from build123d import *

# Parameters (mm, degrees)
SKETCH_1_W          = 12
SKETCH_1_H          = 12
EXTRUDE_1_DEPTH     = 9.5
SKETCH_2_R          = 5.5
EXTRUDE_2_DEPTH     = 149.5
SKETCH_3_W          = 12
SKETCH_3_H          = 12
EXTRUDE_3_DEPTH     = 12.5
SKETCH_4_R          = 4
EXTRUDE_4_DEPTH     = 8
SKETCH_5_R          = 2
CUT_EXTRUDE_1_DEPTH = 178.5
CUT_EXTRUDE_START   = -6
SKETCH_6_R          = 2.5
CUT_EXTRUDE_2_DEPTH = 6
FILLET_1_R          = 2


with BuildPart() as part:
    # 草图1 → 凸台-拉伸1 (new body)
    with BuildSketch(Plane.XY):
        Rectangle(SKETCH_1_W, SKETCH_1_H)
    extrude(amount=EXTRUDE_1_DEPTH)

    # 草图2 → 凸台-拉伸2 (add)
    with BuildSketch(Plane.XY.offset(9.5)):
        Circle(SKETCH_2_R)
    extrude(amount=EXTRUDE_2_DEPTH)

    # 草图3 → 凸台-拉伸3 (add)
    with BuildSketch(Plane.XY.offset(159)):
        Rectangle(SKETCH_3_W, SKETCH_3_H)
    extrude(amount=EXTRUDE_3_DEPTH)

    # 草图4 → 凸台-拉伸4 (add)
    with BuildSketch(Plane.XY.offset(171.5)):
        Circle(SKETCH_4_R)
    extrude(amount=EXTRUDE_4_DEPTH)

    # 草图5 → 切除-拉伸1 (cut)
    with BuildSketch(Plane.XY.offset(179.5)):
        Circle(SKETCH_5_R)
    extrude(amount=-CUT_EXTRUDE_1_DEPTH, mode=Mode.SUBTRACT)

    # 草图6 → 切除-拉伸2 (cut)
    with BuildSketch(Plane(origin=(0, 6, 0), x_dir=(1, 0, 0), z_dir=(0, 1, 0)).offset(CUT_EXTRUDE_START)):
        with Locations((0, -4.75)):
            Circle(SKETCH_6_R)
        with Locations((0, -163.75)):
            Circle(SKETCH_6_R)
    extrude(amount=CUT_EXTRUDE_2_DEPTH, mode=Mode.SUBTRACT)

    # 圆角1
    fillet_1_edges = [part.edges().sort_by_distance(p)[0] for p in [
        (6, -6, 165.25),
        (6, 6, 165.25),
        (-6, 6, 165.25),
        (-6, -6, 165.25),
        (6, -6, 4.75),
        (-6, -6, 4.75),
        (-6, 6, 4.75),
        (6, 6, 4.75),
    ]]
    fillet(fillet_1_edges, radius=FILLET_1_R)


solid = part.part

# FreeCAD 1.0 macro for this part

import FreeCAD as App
import Part
import Sketcher
from FreeCAD import Vector
Q = App.Units.Quantity


def edges_at(feature, points):
    """Names of the edges that pass closest to the given points."""
    edges = feature.Shape.Edges
    near = lambda p: min(range(len(edges)), key=lambda i: edges[i].distToShape(Part.Vertex(*p))[0])
    return sorted({f"Edge{near(p) + 1}" for p in points})


def add_polygon(sketch, points):
    """Adds a closed chain of lines whose ends are joined by coincident constraints."""
    first, n = sketch.GeometryCount, len(points)
    for a, b in zip(points, points[1:] + points[:1]):
        sketch.addGeometry(Part.LineSegment(App.Vector(*a, 0), App.Vector(*b, 0)), False)
    for i in range(n):
        sketch.addConstraint(Sketcher.Constraint("Coincident", first + i, 2, first + (i + 1) % n, 1))

doc = App.newDocument("Part")
body = doc.addObject("PartDesign::Body", "Body")

# Sketch on XY plane
sketch1 = body.newObject("Sketcher::SketchObject", "Sketch")
sketch1.AttachmentSupport = (doc.getObject("XY_Plane"), [""])
sketch1.MapMode = "FlatFace"
add_polygon(sketch1, [(-6, 6), (-6, -6), (6, -6), (6, 6)])  # lines 0-3
sketch1.addConstraint([
    Sketcher.Constraint("Vertical", 0),
    Sketcher.Constraint("Horizontal", 1),
    Sketcher.Constraint("Vertical", 2),
    Sketcher.Constraint("Horizontal", 3),
    Sketcher.Constraint("Symmetric", 0, 2, 2, 2, -1, 1),
    Sketcher.Constraint("Equal", 3, 0),
    Sketcher.Constraint("DistanceX", 1, 1, 1, 2, Q("12 mm")),
])
pad1 = body.newObject("PartDesign::Pad", "Pad")
pad1.Profile = sketch1
pad1.Length = 9.5

# Sketch on XY plane
sketch2 = body.newObject("Sketcher::SketchObject", "Sketch001")
sketch2.AttachmentSupport = (doc.getObject("XY_Plane"), [""])
sketch2.MapMode = "FlatFace"
sketch2.AttachmentOffset = App.Placement(Vector(0, 0, 9.5), App.Rotation())
sketch2.addGeometry(Part.Circle(Vector(0, 0, 0), Vector(0, 0, 1), 6), False)
sketch2.addConstraint([
    Sketcher.Constraint("Coincident", 0, 3, -1, 1),
    Sketcher.Constraint("Diameter", 0, Q("11 mm")),
])
pad2 = body.newObject("PartDesign::Pad", "Pad001")
pad2.Profile = sketch2
pad2.Length = 149.5

# Sketch on XY plane
sketch3 = body.newObject("Sketcher::SketchObject", "Sketch002")
sketch3.AttachmentSupport = (doc.getObject("XY_Plane"), [""])
sketch3.MapMode = "FlatFace"
sketch3.AttachmentOffset = App.Placement(Vector(0, 0, 159), App.Rotation())
add_polygon(sketch3, [(-6, 6), (-6, -6), (6, -6), (6, 6)])  # lines 0-3
sketch3.addConstraint([
    Sketcher.Constraint("Vertical", 0),
    Sketcher.Constraint("Horizontal", 1),
    Sketcher.Constraint("Vertical", 2),
    Sketcher.Constraint("Horizontal", 3),
    Sketcher.Constraint("Symmetric", 0, 2, 2, 2, -1, 1),
    Sketcher.Constraint("Equal", 3, 0),
    Sketcher.Constraint("DistanceX", 1, 1, 1, 2, Q("12 mm")),
])
pad3 = body.newObject("PartDesign::Pad", "Pad002")
pad3.Profile = sketch3
pad3.Length = 12.5

# Sketch on XY plane
sketch4 = body.newObject("Sketcher::SketchObject", "Sketch003")
sketch4.AttachmentSupport = (doc.getObject("XY_Plane"), [""])
sketch4.MapMode = "FlatFace"
sketch4.AttachmentOffset = App.Placement(Vector(0, 0, 171.5), App.Rotation())
sketch4.addGeometry(Part.Circle(Vector(0, 0, 0), Vector(0, 0, 1), 4), False)
sketch4.addConstraint([
    Sketcher.Constraint("Coincident", 0, 3, -1, 1),
    Sketcher.Constraint("Diameter", 0, Q("8 mm")),
])
pad4 = body.newObject("PartDesign::Pad", "Pad003")
pad4.Profile = sketch4
pad4.Length = 8

# Sketch on XY plane
sketch5 = body.newObject("Sketcher::SketchObject", "Sketch004")
sketch5.AttachmentSupport = (doc.getObject("XY_Plane"), [""])
sketch5.MapMode = "FlatFace"
sketch5.AttachmentOffset = App.Placement(Vector(0, 0, 179.5), App.Rotation())
sketch5.addGeometry(Part.Circle(Vector(0, 0, 0), Vector(0, 0, 1), 2), False)
sketch5.addConstraint([
    Sketcher.Constraint("Coincident", 0, 3, -1, 1),
    Sketcher.Constraint("Diameter", 0, Q("4 mm")),
])
pocket1 = body.newObject("PartDesign::Pocket", "Pocket")
pocket1.Profile = sketch5
pocket1.Length = 178.5

# Sketch on XZ plane
sketch6 = body.newObject("Sketcher::SketchObject", "Sketch005")
sketch6.AttachmentSupport = (doc.getObject("XZ_Plane"), [""])
sketch6.MapMode = "FlatFace"
sketch6.addGeometry([
    Part.Circle(Vector(0, 4.8, 0), Vector(0, 0, 1), 2.5),
    Part.Circle(Vector(0, 163.8, 0), Vector(0, 0, 1), 2.5),
], False)
sketch6.addConstraint([
    Sketcher.Constraint("Equal", 0, 1),
    Sketcher.Constraint("PointOnObject", 0, 3, -2),
    Sketcher.Constraint("PointOnObject", 1, 3, -2),
    Sketcher.Constraint("Diameter", 0, Q("5 mm")),
    Sketcher.Constraint("DistanceY", 0, 3, 1, 3, Q("159 mm")),
    Sketcher.Constraint("DistanceY", -1, 1, 0, 3, Q("4.75 mm")),
])
pocket2 = body.newObject("PartDesign::Pocket", "Pocket001")
pocket2.Profile = sketch6
pocket2.Length = 6
doc.recompute()

fillet = body.newObject("PartDesign::Fillet", "Fillet")
fillet.Base = (pocket2, edges_at(pocket2, [
    (6, -6, 165.25),
    (6, 6, 165.25),
    (-6, 6, 165.25),
    (-6, -6, 165.25),
    (6, -6, 4.75),
    (-6, -6, 4.75),
    (-6, 6, 4.75),
    (6, 6, 4.75),
]))
fillet.Radius = 2

doc.recompute()
